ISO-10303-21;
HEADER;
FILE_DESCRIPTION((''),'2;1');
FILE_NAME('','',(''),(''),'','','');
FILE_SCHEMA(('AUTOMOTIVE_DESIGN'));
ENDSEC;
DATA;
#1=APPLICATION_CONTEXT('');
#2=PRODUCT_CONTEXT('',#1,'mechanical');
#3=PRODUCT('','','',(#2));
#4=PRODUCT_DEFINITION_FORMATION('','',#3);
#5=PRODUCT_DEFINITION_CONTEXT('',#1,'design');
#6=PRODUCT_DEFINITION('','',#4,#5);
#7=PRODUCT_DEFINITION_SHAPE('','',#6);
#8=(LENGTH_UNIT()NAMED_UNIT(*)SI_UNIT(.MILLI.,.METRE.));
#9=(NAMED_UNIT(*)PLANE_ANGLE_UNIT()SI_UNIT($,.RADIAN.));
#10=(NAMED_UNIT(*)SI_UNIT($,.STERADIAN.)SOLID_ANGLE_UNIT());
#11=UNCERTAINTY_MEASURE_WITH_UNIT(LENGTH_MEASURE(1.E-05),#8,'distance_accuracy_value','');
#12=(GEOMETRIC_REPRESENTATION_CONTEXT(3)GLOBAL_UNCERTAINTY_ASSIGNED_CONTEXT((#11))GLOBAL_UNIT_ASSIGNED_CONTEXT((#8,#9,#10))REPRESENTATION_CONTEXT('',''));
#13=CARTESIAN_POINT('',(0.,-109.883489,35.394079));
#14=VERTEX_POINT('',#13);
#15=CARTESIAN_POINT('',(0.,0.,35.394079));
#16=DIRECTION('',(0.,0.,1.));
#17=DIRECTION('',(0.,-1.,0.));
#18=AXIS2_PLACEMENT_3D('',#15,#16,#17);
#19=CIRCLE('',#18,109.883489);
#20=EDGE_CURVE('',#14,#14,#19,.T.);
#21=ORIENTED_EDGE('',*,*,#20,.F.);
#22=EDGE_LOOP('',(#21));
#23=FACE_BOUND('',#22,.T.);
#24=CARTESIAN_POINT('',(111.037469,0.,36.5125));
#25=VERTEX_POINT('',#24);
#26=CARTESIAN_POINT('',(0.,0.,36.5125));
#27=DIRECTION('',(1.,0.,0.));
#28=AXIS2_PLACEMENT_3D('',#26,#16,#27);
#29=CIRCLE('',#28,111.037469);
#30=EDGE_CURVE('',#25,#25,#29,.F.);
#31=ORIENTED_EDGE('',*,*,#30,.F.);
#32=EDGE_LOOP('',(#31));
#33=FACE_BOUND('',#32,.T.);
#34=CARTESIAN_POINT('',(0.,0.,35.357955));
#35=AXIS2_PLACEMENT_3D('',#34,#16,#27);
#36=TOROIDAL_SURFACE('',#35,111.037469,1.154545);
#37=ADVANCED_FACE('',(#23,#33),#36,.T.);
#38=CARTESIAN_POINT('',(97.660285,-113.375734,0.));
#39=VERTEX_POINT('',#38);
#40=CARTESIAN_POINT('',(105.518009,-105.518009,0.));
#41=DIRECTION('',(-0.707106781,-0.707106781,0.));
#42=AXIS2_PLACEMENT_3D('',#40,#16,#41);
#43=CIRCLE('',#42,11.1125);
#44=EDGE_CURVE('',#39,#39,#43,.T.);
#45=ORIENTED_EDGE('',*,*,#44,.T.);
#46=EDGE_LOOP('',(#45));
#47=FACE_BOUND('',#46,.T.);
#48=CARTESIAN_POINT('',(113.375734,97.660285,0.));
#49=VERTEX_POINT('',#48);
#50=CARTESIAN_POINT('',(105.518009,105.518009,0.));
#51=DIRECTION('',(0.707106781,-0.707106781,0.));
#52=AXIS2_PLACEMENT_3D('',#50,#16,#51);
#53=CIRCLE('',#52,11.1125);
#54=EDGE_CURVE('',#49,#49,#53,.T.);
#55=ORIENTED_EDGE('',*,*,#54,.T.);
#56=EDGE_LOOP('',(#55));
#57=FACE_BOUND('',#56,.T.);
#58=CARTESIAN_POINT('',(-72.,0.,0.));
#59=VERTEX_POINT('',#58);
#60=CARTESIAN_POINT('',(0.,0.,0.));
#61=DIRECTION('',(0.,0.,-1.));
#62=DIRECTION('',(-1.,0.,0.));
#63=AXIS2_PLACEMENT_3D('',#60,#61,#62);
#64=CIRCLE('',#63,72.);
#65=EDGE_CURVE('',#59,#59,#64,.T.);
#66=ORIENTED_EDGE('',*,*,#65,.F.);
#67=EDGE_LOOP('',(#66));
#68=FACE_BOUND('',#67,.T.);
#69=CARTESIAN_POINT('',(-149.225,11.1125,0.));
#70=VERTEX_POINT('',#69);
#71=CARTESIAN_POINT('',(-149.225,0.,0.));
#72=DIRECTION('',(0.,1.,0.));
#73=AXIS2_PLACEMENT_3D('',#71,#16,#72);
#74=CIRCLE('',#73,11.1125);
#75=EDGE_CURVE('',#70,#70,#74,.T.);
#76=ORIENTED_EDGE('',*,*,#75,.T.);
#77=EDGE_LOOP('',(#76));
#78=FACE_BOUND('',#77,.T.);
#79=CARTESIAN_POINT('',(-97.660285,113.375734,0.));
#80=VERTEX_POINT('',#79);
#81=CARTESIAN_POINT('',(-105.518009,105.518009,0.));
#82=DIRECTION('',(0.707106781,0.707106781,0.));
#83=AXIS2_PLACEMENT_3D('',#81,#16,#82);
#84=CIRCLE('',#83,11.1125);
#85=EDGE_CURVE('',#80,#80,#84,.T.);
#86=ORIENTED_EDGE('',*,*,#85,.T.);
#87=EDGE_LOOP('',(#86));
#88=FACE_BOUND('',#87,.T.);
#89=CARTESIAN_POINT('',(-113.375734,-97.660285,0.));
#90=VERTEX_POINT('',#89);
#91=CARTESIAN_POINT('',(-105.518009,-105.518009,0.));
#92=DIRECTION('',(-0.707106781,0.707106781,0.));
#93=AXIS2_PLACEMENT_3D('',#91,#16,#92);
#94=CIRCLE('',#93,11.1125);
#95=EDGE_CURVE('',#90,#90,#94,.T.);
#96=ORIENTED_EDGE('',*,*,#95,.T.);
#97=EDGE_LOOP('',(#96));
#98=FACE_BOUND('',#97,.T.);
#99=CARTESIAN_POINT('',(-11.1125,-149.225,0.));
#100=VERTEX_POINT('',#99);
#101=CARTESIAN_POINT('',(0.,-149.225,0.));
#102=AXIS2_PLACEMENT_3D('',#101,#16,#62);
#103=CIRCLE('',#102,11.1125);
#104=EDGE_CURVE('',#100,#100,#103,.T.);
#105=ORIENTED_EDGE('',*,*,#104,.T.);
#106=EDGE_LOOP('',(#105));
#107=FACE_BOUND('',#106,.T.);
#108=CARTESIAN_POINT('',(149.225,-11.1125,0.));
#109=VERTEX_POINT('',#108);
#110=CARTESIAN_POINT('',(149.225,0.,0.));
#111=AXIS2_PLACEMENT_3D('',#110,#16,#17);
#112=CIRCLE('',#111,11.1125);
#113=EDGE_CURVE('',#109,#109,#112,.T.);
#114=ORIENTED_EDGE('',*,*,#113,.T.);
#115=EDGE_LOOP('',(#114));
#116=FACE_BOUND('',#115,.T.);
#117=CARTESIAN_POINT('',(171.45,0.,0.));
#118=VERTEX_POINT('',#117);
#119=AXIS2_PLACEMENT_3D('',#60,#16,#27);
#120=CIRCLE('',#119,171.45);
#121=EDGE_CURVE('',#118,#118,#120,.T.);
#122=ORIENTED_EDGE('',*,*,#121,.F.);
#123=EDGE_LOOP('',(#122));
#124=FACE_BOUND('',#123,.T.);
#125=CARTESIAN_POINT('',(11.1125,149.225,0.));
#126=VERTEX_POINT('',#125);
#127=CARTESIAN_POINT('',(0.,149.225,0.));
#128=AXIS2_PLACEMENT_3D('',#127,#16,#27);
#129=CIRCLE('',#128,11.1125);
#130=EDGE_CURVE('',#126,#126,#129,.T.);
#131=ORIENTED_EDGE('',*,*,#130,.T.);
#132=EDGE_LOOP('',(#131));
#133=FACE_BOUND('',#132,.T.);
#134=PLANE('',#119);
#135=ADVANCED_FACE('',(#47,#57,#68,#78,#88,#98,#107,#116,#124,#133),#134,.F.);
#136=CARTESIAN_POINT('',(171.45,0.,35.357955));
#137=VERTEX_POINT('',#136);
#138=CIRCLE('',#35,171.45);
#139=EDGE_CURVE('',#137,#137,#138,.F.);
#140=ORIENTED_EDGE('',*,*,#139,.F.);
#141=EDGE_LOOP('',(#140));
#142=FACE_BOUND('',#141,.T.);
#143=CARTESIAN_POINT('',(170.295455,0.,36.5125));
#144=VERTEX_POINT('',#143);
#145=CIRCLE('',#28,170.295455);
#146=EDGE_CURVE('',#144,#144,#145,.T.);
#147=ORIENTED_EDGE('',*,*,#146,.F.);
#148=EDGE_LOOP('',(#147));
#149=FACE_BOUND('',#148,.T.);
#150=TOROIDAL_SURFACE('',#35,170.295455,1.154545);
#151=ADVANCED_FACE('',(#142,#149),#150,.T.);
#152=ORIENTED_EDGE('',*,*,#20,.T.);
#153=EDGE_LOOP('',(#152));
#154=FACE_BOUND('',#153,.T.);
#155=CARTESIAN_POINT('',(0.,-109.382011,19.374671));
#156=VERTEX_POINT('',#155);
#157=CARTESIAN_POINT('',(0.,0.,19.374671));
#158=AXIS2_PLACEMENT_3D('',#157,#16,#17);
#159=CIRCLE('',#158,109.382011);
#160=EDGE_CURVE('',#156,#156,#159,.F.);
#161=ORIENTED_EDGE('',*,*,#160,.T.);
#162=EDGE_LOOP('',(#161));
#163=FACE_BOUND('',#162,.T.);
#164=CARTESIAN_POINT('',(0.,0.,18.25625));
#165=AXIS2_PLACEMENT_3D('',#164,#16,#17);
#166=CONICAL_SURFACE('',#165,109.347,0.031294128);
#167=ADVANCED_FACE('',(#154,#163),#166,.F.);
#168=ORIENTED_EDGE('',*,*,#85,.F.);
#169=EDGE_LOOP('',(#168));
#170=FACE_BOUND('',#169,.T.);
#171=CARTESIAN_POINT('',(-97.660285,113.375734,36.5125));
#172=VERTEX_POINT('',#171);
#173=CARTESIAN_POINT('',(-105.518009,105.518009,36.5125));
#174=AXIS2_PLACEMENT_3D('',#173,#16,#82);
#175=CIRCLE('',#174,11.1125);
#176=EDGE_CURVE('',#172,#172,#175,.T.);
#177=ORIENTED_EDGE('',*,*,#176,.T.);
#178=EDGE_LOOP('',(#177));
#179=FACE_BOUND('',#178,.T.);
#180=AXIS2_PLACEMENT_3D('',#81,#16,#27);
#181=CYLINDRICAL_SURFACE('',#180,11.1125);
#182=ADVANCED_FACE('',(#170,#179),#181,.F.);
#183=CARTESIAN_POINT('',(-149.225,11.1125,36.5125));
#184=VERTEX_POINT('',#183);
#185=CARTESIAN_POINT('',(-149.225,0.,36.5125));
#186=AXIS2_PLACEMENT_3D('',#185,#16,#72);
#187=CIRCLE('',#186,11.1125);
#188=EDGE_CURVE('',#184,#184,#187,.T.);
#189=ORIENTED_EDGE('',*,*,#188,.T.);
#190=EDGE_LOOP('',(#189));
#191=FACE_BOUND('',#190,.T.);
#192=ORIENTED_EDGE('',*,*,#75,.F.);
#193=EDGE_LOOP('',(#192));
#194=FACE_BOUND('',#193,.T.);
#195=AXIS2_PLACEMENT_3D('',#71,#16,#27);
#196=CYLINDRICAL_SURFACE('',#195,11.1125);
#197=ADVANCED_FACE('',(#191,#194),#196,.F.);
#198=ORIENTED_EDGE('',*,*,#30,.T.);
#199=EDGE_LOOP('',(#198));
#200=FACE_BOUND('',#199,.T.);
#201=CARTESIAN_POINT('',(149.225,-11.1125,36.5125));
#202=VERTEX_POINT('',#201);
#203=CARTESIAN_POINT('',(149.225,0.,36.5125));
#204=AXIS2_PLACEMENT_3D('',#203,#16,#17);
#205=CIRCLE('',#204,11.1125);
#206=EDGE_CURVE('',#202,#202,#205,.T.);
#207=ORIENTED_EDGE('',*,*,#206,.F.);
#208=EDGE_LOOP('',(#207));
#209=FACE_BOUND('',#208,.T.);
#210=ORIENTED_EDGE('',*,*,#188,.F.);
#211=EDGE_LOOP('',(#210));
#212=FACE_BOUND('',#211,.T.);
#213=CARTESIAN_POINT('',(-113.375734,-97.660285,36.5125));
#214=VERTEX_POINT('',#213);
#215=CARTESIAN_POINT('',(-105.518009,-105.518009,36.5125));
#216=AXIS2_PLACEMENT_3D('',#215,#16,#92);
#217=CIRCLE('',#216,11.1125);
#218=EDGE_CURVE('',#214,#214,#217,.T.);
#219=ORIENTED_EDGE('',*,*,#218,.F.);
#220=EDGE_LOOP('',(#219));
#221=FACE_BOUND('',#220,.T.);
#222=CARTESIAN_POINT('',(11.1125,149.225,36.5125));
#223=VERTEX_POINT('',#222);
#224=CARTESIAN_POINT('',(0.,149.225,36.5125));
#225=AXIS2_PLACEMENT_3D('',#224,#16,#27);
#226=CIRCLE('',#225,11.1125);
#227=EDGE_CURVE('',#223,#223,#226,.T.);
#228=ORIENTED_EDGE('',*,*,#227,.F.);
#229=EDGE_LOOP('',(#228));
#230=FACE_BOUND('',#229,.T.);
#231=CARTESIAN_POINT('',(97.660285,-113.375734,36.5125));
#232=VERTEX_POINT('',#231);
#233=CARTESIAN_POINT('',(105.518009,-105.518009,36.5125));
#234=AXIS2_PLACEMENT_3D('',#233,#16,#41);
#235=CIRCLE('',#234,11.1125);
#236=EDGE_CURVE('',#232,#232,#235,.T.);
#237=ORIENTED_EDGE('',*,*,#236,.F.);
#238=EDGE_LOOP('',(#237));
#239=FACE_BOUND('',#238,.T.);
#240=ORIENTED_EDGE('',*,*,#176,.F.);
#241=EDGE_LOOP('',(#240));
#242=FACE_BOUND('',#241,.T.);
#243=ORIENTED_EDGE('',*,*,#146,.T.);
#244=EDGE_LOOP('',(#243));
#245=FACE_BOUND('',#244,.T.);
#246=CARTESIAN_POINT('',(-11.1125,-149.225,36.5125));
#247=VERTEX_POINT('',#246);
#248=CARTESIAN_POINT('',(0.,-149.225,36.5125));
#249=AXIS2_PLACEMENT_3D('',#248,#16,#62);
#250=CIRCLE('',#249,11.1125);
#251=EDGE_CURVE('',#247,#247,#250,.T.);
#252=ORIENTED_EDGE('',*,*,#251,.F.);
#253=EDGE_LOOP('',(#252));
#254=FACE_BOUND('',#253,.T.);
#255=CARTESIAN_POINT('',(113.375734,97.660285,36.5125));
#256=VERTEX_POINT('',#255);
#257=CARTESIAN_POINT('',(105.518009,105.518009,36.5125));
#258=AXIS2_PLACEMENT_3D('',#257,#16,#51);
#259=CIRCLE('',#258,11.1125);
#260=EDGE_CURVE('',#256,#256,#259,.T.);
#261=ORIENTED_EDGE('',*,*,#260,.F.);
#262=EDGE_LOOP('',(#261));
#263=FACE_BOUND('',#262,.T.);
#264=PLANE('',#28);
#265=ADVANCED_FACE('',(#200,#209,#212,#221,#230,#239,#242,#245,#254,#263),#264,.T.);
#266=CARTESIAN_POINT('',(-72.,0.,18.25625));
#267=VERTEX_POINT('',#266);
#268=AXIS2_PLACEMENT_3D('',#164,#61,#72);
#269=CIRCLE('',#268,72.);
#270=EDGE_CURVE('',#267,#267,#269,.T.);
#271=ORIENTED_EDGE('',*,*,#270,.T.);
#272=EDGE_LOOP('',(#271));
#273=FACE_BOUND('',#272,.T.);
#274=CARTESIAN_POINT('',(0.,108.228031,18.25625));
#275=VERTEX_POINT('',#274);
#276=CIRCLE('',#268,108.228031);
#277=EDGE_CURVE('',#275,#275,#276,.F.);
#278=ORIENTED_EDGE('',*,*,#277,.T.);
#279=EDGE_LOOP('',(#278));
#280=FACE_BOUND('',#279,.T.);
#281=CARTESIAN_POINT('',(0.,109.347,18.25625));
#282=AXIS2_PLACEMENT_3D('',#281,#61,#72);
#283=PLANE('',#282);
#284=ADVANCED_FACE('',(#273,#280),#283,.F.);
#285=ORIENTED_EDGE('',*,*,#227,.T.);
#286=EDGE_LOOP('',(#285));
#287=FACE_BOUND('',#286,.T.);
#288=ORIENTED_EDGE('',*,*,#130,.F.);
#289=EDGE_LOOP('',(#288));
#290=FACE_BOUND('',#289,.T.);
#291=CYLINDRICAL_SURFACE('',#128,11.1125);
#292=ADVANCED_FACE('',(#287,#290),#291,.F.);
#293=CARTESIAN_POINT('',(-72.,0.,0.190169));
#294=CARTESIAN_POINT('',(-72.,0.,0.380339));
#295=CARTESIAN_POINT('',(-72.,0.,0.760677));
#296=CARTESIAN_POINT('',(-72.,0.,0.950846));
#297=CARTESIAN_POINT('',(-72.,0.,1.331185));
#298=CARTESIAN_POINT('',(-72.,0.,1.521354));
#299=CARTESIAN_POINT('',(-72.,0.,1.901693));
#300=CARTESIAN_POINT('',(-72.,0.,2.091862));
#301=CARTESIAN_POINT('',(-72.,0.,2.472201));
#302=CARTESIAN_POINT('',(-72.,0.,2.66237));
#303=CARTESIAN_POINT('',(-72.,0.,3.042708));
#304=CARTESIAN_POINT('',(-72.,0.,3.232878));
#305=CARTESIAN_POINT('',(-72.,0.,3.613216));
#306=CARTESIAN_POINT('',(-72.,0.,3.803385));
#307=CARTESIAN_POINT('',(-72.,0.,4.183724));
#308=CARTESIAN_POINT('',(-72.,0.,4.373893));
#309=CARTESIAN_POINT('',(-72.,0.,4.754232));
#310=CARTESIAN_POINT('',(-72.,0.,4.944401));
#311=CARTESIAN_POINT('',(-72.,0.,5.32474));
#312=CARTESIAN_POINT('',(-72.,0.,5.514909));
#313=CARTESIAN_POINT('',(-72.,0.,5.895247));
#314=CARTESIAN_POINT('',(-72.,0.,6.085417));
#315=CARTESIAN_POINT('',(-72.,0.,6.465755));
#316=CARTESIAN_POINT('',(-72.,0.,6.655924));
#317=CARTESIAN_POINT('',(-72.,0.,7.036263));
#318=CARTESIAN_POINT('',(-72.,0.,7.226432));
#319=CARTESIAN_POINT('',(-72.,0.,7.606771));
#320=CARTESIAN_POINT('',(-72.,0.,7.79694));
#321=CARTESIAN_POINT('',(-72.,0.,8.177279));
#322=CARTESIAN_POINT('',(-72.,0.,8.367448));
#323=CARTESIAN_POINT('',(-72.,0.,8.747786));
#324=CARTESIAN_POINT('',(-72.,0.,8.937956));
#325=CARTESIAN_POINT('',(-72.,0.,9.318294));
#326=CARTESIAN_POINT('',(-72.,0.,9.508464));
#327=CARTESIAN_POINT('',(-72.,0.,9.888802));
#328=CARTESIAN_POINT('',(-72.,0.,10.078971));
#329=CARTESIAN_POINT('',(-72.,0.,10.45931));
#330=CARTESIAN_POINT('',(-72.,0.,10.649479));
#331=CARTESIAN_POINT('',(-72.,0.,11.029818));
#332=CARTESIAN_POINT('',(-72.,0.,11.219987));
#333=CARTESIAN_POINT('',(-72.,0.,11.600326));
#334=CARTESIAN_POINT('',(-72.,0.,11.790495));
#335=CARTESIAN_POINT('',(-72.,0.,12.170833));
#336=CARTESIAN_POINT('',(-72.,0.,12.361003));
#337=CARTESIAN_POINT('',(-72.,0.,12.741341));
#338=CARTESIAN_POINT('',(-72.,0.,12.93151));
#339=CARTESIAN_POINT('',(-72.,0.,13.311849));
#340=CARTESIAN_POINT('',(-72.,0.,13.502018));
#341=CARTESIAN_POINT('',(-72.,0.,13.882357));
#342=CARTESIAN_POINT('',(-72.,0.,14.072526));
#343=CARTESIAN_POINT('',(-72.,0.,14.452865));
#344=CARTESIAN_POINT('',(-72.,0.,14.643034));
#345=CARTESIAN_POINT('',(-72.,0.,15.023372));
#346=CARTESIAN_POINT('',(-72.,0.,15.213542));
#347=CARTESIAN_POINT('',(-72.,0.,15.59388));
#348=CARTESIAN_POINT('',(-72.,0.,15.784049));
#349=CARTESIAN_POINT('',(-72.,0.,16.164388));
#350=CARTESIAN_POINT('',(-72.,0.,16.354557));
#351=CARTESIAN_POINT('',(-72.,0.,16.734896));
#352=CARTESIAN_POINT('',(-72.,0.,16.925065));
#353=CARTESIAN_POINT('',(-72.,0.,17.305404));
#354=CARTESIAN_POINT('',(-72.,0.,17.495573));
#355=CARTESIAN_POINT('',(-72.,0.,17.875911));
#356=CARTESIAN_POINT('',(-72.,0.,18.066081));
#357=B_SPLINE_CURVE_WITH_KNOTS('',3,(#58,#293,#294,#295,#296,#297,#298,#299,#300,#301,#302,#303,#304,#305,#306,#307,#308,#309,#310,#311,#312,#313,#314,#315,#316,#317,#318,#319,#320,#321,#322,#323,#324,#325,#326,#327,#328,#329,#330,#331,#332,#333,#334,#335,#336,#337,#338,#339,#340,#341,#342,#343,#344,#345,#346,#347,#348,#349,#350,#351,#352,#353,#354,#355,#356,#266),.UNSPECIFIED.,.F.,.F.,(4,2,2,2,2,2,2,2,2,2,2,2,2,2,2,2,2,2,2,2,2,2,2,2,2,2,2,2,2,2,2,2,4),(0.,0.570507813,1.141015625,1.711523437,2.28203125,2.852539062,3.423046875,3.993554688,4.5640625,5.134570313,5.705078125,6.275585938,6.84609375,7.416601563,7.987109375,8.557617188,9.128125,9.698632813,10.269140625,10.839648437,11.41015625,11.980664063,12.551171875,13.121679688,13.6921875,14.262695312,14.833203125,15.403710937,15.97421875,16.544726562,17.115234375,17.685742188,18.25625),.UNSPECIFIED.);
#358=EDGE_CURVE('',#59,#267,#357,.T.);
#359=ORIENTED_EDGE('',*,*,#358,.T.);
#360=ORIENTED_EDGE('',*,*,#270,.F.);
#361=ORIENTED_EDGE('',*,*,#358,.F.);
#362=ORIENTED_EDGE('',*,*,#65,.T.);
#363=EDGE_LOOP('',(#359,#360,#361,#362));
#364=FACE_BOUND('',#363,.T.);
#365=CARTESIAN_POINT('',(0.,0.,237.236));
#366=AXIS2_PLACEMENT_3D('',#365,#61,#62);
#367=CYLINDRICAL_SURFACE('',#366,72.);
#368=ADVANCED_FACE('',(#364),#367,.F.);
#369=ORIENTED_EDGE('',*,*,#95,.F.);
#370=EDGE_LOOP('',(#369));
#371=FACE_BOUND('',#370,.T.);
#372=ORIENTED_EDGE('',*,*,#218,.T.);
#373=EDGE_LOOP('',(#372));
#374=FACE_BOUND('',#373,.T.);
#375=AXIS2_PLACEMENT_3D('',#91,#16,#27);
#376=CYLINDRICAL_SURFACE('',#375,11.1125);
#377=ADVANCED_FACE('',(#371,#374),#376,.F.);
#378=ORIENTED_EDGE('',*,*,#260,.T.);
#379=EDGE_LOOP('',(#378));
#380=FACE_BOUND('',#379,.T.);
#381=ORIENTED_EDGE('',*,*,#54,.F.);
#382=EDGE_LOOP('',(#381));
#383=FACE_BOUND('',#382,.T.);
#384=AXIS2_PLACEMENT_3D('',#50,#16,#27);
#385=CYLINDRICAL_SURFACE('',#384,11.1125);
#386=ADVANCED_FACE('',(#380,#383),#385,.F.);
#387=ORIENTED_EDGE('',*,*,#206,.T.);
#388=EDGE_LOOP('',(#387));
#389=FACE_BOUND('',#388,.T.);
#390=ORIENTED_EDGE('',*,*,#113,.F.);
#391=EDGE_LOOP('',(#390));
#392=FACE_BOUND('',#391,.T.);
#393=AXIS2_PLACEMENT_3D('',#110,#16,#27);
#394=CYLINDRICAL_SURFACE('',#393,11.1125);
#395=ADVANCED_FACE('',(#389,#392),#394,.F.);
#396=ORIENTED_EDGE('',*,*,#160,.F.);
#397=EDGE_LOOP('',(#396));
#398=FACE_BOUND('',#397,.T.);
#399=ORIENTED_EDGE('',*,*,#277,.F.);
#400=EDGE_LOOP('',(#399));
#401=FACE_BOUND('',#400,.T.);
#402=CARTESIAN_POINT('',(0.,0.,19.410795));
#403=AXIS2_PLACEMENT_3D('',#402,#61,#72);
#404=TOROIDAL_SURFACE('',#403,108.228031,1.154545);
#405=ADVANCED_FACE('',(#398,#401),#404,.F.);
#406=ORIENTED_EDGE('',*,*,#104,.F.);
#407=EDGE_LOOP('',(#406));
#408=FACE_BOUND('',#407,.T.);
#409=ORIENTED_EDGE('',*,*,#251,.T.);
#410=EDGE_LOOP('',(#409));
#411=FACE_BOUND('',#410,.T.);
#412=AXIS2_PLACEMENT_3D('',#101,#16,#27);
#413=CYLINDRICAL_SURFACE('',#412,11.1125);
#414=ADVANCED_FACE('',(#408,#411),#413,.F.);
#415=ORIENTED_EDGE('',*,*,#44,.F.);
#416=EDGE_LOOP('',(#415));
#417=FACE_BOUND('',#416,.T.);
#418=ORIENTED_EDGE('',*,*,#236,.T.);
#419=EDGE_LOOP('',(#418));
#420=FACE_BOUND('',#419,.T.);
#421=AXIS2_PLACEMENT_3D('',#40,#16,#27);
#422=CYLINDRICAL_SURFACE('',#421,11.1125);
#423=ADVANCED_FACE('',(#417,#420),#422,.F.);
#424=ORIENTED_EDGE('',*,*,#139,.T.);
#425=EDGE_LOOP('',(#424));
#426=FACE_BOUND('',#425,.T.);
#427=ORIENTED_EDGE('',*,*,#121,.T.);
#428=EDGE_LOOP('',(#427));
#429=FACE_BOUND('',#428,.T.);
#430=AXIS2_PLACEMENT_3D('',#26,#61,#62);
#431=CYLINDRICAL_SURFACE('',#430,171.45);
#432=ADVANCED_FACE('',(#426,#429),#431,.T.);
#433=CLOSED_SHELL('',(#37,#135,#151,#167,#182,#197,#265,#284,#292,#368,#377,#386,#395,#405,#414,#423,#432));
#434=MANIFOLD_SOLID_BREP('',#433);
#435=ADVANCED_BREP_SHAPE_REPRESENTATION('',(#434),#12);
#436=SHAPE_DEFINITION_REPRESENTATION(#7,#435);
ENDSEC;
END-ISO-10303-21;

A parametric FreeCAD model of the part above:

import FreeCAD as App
import Part
import Sketcher
from FreeCAD import Vector
Q = App.Units.Quantity


def edges_at(feature, points):
    """Names of the edges that pass closest to the given points."""
    edges = feature.Shape.Edges
    near = lambda p: min(range(len(edges)), key=lambda i: edges[i].distToShape(Part.Vertex(*p))[0])
    return sorted({f"Edge{near(p) + 1}" for p in points})


def add_polygon(sketch, points):
    """Adds a closed chain of lines whose ends are joined by coincident constraints."""
    first, n = sketch.GeometryCount, len(points)
    for a, b in zip(points, points[1:] + points[:1]):
        sketch.addGeometry(Part.LineSegment(App.Vector(*a, 0), App.Vector(*b, 0)), False)
    for i in range(n):
        sketch.addConstraint(Sketcher.Constraint("Coincident", first + i, 2, first + (i + 1) % n, 1))

doc = App.newDocument("Part")
body = doc.addObject("PartDesign::Body", "Body")

# Sketch on XY plane
sketch1 = body.newObject("Sketcher::SketchObject", "Sketch")
sketch1.AttachmentSupport = (doc.getObject("XY_Plane"), [""])
sketch1.MapMode = "FlatFace"
sketch1.addGeometry(Part.Circle(Vector(0, 0, 0), Vector(0, 0, 1), 171.45), False)
sketch1.addConstraint([
    Sketcher.Constraint("Coincident", 0, 3, -1, 1),
    Sketcher.Constraint("Diameter", 0, Q("13.5 in")),
])
pad1 = body.newObject("PartDesign::Pad", "Pad")
pad1.Profile = sketch1
pad1.Length = Q("1.4375 in")

# Sketch on XY plane
sketch2 = body.newObject("Sketcher::SketchObject", "Sketch001")
sketch2.AttachmentSupport = (doc.getObject("XY_Plane"), [""])
sketch2.MapMode = "FlatFace"
sketch2.AttachmentOffset = App.Placement(Vector(0, 0, 1.4375 * 25.4), App.Rotation())
sketch2.addGeometry(Part.Circle(Vector(0, 149.225, 0), Vector(0, 0, 1), 11.1125), False)
sketch2.addConstraint([
    Sketcher.Constraint("PointOnObject", 0, 3, -2),
    Sketcher.Constraint("Diameter", 0, Q("0.875 in")),
    Sketcher.Constraint("DistanceY", -1, 1, 0, 3, Q("5.875 in")),
])
pocket1 = body.newObject("PartDesign::Pocket", "Pocket")
pocket1.Profile = sketch2
pocket1.Type = "ThroughAll"
doc.recompute()

polarpattern = body.newObject("PartDesign::PolarPattern", "PolarPattern")
polarpattern.Originals = [pocket1]
polarpattern.Axis = (doc.getObject("Z_Axis"), [""])
polarpattern.Angle = 360
polarpattern.Occurrences = 8
body.Tip = polarpattern

# Sketch on YZ plane
sketch3 = body.newObject("Sketcher::SketchObject", "Sketch002")
sketch3.AttachmentSupport = (doc.getObject("YZ_Plane"), [""])
sketch3.MapMode = "FlatFace"
add_polygon(sketch3, [(109.347, 18.25625), (109.9185, 36.5125), (0, 36.5125), (0, 18.25625)])  # lines 0-3
sketch3.addConstraint([
    Sketcher.Constraint("Horizontal", 1),
    Sketcher.Constraint("Vertical", 2),
    Sketcher.Constraint("Horizontal", 3),
    Sketcher.Constraint("PointOnObject", 1, 2, -2),
    Sketcher.Constraint("DistanceX", 3, 1, 3, 2, Q("4.305 in")),
    Sketcher.Constraint("DistanceY", 2, 2, 2, 1, Q("0.71875 in")),
    Sketcher.Constraint("DistanceX", 1, 2, 1, 1, Q("4.3275 in")),
    Sketcher.Constraint("DistanceY", -1, 1, 0, 2, Q("1.4375 in")),
])
groove = body.newObject("PartDesign::Groove", "Groove")
groove.Profile = sketch3
groove.ReferenceAxis = (sketch3, ["V_Axis"])
groove.Angle = 360
doc.recompute()

fillet = body.newObject("PartDesign::Fillet", "Fillet")
fillet.Base = (groove, edges_at(groove, [(0, -109.347, 18.256), (0, -109.918, 36.513), (-171.45, 0, 36.513)]))
fillet.Radius = 1.154545

# Sketch on XY plane
sketch4 = body.newObject("Sketcher::SketchObject", "Sketch003")
sketch4.AttachmentSupport = (doc.getObject("XY_Plane"), [""])
sketch4.MapMode = "FlatFace"
sketch4.addGeometry(Part.Circle(Vector(0, 0, 0), Vector(0, 0, 1), 72), False)
sketch4.addConstraint([
    Sketcher.Constraint("Coincident", 0, 3, -1, 1),
    Sketcher.Constraint("Diameter", 0, 144.0),
])
pocket2 = body.newObject("PartDesign::Pocket", "Pocket001")
pocket2.Profile = sketch4
pocket2.Length = Q("9.34 in")
pocket2.Reversed = True

doc.recompute()
